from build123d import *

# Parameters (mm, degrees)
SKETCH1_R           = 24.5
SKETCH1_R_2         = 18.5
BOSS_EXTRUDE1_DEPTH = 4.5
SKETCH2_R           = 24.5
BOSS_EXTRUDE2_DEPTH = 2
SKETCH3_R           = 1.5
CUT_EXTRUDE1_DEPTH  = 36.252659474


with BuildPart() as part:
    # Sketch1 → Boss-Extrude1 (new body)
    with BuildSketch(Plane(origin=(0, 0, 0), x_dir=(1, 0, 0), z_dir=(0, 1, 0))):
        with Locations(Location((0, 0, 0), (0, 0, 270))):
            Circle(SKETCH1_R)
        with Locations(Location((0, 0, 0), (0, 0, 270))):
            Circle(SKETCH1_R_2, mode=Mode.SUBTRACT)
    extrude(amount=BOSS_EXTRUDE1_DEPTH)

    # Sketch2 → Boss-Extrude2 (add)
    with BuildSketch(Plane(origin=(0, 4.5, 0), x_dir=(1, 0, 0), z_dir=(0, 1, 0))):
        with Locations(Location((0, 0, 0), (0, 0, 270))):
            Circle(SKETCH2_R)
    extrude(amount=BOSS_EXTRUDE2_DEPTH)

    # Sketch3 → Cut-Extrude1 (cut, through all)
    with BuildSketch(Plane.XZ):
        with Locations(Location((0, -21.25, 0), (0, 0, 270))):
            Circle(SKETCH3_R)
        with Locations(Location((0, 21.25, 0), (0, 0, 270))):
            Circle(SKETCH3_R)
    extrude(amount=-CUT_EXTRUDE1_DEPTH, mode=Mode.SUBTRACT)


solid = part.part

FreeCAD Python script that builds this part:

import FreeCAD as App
import Part
import Sketcher
Q = App.Units.Quantity

doc = App.newDocument("Part")
params = doc.addObject("Spreadsheet::Sheet", "Params")
for row, (alias, value) in enumerate([
    ("sketch1_diameter", "49 mm"),
    ("sketch1_diameter2", "37 mm"),
    ("pad1_length", "4.5 mm"),
    ("sketch2_diameter", "49 mm"),
    ("pad2_length", "2 mm"),
    ("sketch3_diameter", "3 mm"),
], start=1):
    params.set(f"A{row}", alias)
    params.set(f"B{row}", "=" + value)
    params.setAlias(f"B{row}", alias)

body = doc.addObject("PartDesign::Body", "Body")

sketch1 = doc.addObject("Sketcher::SketchObject", "Sketch")
body.addObject(sketch1)
sketch1.AttachmentSupport = (doc.XZ_Plane, [""])
sketch1.MapMode = "FlatFace"
sketch1.addGeometry(Part.Circle(App.Vector(0, 0, 0), App.Vector(0, 0, 1), 24), False)
sketch1.addGeometry(Part.Circle(App.Vector(0, 0, 0), App.Vector(0, 0, 1), 18), False)
sketch1.addConstraint(Sketcher.Constraint("Coincident", 0, 3, -1, 1))
sketch1.addConstraint(Sketcher.Constraint("Coincident", 1, 3, -1, 1))
sketch1.addConstraint(Sketcher.Constraint("Diameter", 0, Q("49 mm")))
sketch1.addConstraint(Sketcher.Constraint("Diameter", 1, Q("37 mm")))
sketch1.setExpression("Constraints[2]", "Params.sketch1_diameter")
sketch1.setExpression("Constraints[3]", "Params.sketch1_diameter2")
pad1 = doc.addObject("PartDesign::Pad", "Pad")
body.addObject(pad1)
pad1.Profile = sketch1
pad1.setExpression("Length", "Params.pad1_length")
pad1.Reversed = True

sketch2 = doc.addObject("Sketcher::SketchObject", "Sketch001")
body.addObject(sketch2)
sketch2.AttachmentSupport = (doc.XZ_Plane, [""])
sketch2.MapMode = "FlatFace"
sketch2.AttachmentOffset = App.Placement(App.Vector(0, 0, -4.5), App.Rotation())
sketch2.addGeometry(Part.Circle(App.Vector(0, 0, 0), App.Vector(0, 0, 1), 24), False)
sketch2.addConstraint(Sketcher.Constraint("Coincident", 0, 3, -1, 1))
sketch2.addConstraint(Sketcher.Constraint("Diameter", 0, Q("49 mm")))
sketch2.setExpression("Constraints[1]", "Params.sketch2_diameter")
pad2 = doc.addObject("PartDesign::Pad", "Pad001")
body.addObject(pad2)
pad2.Profile = sketch2
pad2.setExpression("Length", "Params.pad2_length")
pad2.Reversed = True

sketch3 = doc.addObject("Sketcher::SketchObject", "Sketch002")
body.addObject(sketch3)
sketch3.AttachmentSupport = (doc.XZ_Plane, [""])
sketch3.MapMode = "FlatFace"
sketch3.addGeometry(Part.Circle(App.Vector(0, -21.2, 0), App.Vector(0, 0, 1), 1.5), False)
sketch3.addGeometry(Part.Circle(App.Vector(0, 21.2, 0), App.Vector(0, 0, 1), 1.5), False)
sketch3.addConstraint(Sketcher.Constraint("Equal", 0, 1))
sketch3.addConstraint(Sketcher.Constraint("Symmetric", 0, 3, 1, 3, -1, 1))
sketch3.addConstraint(Sketcher.Constraint("PointOnObject", 0, 3, -2))
sketch3.addConstraint(Sketcher.Constraint("Diameter", 0, Q("3 mm")))
sketch3.addConstraint(Sketcher.Constraint("DistanceY", 0, 3, 1, 3, Q("42.5 mm")))
sketch3.setExpression("Constraints[3]", "Params.sketch3_diameter")
pocket1 = doc.addObject("PartDesign::Pocket", "Pocket")
body.addObject(pocket1)
pocket1.Profile = sketch3
pocket1.Type = "ThroughAll"

doc.recompute()
